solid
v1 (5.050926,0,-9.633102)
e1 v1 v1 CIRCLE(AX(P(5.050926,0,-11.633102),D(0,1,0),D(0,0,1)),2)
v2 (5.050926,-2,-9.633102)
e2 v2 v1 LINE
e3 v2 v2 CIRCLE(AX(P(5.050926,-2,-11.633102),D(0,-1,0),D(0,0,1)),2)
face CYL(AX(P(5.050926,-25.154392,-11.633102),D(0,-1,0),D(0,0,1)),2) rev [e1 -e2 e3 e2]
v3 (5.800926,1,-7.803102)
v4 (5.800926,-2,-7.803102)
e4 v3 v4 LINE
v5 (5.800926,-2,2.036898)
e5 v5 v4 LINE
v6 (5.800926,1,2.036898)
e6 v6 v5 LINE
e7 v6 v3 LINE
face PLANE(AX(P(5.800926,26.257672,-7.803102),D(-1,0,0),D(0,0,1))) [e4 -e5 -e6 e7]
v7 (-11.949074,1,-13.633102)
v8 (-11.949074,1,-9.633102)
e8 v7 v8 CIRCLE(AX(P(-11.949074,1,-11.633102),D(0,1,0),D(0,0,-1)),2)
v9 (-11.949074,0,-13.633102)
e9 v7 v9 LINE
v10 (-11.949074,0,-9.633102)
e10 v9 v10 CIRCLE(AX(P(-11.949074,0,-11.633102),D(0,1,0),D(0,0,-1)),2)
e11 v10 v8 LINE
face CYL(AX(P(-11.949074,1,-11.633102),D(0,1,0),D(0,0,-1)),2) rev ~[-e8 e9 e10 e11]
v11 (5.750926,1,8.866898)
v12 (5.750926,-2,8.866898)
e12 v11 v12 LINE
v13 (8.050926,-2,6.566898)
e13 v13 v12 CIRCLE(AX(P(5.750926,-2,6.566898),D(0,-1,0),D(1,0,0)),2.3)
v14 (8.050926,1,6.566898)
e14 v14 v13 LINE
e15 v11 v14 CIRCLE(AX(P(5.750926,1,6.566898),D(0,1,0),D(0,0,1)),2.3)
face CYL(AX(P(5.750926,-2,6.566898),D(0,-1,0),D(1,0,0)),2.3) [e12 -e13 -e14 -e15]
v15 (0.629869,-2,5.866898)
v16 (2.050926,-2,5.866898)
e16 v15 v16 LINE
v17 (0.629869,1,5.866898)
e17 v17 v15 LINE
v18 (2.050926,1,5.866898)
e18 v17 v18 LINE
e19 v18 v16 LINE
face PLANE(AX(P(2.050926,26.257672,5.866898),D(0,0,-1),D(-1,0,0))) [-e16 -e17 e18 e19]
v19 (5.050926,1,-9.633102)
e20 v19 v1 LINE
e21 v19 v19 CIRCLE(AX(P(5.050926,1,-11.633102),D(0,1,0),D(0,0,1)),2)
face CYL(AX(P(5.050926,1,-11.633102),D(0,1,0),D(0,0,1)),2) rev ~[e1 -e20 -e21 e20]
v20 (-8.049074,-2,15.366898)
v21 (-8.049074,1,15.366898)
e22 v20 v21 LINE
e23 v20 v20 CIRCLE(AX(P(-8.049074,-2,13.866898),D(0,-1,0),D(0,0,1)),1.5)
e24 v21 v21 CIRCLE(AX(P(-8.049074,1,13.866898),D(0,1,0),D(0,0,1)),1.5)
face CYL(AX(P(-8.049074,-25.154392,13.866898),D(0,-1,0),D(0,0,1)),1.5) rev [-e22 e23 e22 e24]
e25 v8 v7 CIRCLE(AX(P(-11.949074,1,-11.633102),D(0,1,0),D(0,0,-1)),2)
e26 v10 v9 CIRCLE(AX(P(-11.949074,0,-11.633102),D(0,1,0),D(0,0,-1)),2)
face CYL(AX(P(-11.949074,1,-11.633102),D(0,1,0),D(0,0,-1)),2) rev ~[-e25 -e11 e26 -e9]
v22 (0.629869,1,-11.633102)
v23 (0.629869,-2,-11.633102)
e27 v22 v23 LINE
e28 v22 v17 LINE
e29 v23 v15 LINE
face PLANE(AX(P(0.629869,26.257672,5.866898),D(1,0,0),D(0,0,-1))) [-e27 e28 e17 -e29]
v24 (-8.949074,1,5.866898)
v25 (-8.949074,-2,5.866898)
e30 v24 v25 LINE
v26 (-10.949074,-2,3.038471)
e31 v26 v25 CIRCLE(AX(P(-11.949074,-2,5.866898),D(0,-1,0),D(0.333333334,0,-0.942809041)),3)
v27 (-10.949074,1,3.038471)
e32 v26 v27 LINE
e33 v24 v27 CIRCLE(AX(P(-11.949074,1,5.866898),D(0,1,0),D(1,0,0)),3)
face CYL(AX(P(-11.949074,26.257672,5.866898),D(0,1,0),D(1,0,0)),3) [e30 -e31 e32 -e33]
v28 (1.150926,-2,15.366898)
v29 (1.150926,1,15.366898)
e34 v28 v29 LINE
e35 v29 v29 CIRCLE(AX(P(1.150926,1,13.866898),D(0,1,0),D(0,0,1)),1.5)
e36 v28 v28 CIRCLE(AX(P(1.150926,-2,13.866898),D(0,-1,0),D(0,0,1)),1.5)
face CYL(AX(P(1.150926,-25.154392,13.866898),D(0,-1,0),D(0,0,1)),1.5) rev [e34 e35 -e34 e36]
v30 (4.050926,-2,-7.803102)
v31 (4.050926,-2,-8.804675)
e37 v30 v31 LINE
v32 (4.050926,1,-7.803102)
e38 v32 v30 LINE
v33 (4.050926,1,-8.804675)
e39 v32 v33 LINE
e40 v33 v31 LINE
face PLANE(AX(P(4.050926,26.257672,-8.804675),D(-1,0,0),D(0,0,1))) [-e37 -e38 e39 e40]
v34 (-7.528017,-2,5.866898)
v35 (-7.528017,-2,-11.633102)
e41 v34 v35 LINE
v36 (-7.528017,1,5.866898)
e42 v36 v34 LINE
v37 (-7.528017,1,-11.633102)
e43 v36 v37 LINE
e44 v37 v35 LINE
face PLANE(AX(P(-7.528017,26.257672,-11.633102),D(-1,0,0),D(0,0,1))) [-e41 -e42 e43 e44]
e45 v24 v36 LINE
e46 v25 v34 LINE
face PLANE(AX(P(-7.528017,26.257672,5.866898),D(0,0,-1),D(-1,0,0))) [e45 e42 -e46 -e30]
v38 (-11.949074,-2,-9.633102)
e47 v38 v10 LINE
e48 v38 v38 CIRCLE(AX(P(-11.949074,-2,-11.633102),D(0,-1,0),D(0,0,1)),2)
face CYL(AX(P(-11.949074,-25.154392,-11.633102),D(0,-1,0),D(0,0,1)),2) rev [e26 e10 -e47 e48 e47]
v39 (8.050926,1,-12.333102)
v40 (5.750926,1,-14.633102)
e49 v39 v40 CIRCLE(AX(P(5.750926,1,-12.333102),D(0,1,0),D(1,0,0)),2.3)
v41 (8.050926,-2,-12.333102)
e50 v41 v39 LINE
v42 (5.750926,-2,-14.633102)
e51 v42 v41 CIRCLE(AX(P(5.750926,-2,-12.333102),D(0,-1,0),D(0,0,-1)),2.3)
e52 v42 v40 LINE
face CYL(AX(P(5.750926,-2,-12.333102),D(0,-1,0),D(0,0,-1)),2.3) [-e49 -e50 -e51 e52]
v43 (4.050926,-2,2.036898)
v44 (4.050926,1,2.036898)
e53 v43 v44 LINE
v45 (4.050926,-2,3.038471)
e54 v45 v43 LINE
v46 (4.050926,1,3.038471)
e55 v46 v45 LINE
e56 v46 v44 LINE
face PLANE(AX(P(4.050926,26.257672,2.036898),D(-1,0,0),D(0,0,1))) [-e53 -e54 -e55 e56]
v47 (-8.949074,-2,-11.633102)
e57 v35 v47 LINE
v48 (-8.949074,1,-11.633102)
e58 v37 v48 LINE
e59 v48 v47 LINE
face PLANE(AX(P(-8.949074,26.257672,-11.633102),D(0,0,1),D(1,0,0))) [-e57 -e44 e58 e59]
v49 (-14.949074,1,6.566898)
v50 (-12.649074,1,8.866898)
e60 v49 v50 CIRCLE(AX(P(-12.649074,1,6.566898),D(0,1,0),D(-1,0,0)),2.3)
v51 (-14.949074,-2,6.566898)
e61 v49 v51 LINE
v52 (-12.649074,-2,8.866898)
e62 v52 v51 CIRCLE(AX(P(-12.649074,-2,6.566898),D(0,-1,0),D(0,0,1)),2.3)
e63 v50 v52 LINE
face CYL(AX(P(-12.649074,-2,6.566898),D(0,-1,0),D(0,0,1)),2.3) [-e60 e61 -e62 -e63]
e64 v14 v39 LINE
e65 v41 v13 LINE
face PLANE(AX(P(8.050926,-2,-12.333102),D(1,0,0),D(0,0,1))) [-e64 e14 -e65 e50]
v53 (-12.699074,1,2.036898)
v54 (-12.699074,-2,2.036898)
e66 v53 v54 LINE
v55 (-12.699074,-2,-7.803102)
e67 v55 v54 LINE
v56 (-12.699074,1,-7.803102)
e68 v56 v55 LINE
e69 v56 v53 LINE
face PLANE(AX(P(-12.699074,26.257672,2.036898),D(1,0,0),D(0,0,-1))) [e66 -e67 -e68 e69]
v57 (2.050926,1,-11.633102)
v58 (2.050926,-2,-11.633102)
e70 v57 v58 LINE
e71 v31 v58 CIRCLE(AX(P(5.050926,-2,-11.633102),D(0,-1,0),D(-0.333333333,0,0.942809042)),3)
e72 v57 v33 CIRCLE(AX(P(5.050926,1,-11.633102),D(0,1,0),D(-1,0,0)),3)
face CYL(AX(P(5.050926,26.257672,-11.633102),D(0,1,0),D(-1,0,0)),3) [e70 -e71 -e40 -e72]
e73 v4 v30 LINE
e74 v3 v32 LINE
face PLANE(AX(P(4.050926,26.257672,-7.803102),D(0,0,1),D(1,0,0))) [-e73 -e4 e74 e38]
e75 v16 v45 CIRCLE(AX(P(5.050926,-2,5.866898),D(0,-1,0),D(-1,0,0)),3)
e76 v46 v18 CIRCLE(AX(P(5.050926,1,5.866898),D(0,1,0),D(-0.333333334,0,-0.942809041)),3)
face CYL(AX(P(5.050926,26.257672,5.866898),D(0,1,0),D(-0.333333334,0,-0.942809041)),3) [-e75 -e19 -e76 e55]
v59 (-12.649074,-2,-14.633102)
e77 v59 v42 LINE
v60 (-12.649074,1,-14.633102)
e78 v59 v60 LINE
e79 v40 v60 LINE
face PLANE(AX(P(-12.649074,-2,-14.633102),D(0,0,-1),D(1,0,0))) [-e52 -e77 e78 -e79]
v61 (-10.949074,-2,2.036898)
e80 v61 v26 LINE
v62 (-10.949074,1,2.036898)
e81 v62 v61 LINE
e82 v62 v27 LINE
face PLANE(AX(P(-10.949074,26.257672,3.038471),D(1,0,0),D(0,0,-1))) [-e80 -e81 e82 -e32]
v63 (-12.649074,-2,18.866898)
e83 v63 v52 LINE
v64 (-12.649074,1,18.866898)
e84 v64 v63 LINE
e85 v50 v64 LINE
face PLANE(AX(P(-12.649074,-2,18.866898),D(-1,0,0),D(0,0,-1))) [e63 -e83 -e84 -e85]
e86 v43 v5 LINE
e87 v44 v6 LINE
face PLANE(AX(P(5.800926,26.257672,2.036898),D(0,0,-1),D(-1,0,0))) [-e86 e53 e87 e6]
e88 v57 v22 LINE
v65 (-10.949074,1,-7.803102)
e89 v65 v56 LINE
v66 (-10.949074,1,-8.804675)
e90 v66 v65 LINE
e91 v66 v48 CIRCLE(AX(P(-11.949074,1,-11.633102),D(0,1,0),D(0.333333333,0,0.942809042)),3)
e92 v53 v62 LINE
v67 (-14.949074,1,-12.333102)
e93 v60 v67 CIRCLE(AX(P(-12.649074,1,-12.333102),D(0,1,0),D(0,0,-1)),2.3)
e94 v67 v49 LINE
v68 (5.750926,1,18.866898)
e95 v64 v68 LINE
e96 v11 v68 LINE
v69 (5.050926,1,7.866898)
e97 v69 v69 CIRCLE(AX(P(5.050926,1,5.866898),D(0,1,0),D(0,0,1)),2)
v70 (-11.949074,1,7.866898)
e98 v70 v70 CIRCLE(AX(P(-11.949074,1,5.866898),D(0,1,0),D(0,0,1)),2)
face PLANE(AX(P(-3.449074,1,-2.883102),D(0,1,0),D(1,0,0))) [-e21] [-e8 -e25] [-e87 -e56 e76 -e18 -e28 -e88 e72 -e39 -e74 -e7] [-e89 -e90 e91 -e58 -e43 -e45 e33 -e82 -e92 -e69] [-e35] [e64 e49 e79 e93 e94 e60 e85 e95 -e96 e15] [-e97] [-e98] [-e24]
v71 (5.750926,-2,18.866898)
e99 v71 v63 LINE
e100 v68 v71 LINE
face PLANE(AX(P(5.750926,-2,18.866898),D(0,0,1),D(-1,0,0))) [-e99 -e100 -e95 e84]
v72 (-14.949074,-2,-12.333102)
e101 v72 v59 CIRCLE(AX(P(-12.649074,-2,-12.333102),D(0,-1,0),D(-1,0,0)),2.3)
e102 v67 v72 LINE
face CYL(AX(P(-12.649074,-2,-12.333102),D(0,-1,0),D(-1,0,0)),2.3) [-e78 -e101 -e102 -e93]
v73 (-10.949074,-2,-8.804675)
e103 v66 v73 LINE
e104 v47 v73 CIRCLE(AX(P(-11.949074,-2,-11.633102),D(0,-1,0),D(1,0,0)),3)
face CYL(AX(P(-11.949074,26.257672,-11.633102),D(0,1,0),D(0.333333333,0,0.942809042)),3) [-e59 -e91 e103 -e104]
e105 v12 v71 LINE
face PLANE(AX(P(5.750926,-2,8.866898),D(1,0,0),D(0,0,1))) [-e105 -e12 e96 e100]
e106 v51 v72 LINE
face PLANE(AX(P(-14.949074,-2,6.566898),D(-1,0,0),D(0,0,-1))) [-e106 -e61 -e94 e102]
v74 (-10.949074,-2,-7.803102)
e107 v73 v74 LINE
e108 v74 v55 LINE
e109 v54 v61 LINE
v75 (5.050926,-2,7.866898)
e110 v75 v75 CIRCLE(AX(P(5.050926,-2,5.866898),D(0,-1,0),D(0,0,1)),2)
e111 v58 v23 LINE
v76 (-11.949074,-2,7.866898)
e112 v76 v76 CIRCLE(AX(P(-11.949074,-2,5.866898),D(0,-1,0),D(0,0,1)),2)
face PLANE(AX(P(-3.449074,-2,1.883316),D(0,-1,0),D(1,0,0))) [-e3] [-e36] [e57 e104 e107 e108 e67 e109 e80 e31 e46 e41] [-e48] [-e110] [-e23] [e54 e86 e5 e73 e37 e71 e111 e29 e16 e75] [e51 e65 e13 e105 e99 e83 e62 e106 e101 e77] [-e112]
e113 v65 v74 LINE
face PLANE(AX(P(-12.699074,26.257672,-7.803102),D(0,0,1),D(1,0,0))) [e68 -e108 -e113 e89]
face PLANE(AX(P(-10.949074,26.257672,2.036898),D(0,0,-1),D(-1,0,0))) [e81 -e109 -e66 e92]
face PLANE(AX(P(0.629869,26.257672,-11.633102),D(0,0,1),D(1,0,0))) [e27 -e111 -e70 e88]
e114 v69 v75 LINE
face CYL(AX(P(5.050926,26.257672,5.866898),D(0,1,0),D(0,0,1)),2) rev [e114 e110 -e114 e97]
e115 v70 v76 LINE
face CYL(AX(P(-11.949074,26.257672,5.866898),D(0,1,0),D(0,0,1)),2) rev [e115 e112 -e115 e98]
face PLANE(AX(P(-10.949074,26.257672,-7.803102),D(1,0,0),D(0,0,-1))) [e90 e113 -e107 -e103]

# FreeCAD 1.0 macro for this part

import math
import FreeCAD as App
import Part
import Sketcher
from FreeCAD import Vector


def add_polygon(sketch, points):
    """Adds a closed chain of lines whose ends are joined by coincident constraints."""
    first, n = sketch.GeometryCount, len(points)
    for a, b in zip(points, points[1:] + points[:1]):
        sketch.addGeometry(Part.LineSegment(App.Vector(*a, 0), App.Vector(*b, 0)), False)
    for i in range(n):
        sketch.addConstraint(Sketcher.Constraint("Coincident", first + i, 2, first + (i + 1) % n, 1))

doc = App.newDocument("Part")
params = doc.addObject("Spreadsheet::Sheet", "Params")
for row, (alias, value) in enumerate([
    ("sketch1_radius", "2.3 mm"),
    ("sketch1_width", "18.4 mm"),
    ("sketch1_height", "18.9 mm"),
    ("pad1_length", "2 mm"),
    ("sketch2_radius", "1.3 mm"),
    ("sketch2_width", "18.4 mm"),
    ("sketch2_height", "18.9 mm"),
    ("pocket1_length", "1 mm"),
    ("sketch3_diameter", "4 mm"),
    ("sketch4_radius", "3 mm"),
    ("sketch4_height", "17.5 mm"),
    ("sketch5_height", "1 mm"),
    ("sketch5_width", "18.4 mm"),
    ("pad2_length", "10 mm"),
    ("sketch6_diameter", "3 mm"),
    ("sketch7_radius", "1.5 mm"),
    ("sketch7_width", "18.4 mm"),
    ("sketch7_height", "18.9 mm"),
    ("pocket5_length", "1 mm"),
    ("sketch8_height", "17.5 mm"),
    ("sketch8_width", "1.75 mm"),
    ("sketch8_height2", "9.84 mm"),
    ("sketch9_radius", "2.3 mm"),
    ("sketch9_height", "10 mm"),
    ("sketch9_width", "18.4 mm"),
    ("sketch9_height2", "18.9 mm"),
    ("pad3_length", "2 mm"),
    ("sketch10_radius", "3 mm"),
    ("sketch10_height", "17.5 mm"),
    ("sketch10_width", "1.75 mm"),
    ("sketch10_height2", "9.84 mm"),
    ("sketch11_radius", "3 mm"),
    ("sketch11_height", "17.5 mm"),
    ("sketch11_width", "1 mm"),
    ("sketch11_width2", "1.75 mm"),
    ("sketch11_height2", "9.84 mm"),
    ("sketch12_diameter", "3 mm"),
    ("sketch13_diameter", "3 mm"),
    ("sketch14_diameter", "4 mm"),
    ("sketch15_radius", "1.5 mm"),
    ("sketch15_width", "18.4 mm"),
    ("sketch15_height", "18.9 mm"),
    ("pad4_length", "1 mm"),
    ("sketch16_diameter", "4 mm"),
    ("sketch16_radius", "3 mm"),
    ("sketch16_height", "17.5 mm"),
    ("sketch16_width", "1.75 mm"),
    ("sketch16_height2", "9.84 mm"),
    ("sketch17_radius", "2.3 mm"),
    ("sketch17_width", "18.4 mm"),
    ("sketch17_height", "18.9 mm"),
    ("pocket13_length", "1 mm"),
], start=1):
    params.set(f"A{row}", alias)
    params.set(f"B{row}", "=" + value)
    params.setAlias(f"B{row}", alias)

body = doc.addObject("PartDesign::Body", "Body")

sketch1 = doc.addObject("Sketcher::SketchObject", "Sketch")
body.addObject(sketch1)
sketch1.AttachmentSupport = (doc.XZ_Plane, [""])
sketch1.MapMode = "FlatFace"
sketch1.addGeometry([
    Part.LineSegment(Vector(5.750926, -14.633102, 0), Vector(-12.649074, -14.633102, 0)),
    Part.ArcOfCircle(Part.Circle(Vector(-12.649074, -12.333102, 0), Vector(0, 0, 1), 2.3), math.radians(180), math.radians(270)),
    Part.LineSegment(Vector(-14.949074, -12.333102, 0), Vector(-14.949074, 6.566898, 0)),
    Part.ArcOfCircle(Part.Circle(Vector(-12.649074, 6.566898, 0), Vector(0, 0, 1), 2.3), math.radians(90), math.radians(180)),
    Part.LineSegment(Vector(-12.649074, 8.866898, 0), Vector(5.750926, 8.866898, 0)),
    Part.ArcOfCircle(Part.Circle(Vector(5.750926, 6.566898, 0), Vector(0, 0, 1), 2.3), math.radians(0), math.radians(90)),
    Part.LineSegment(Vector(8.050926, 6.566898, 0), Vector(8.050926, -12.333102, 0)),
    Part.ArcOfCircle(Part.Circle(Vector(5.750926, -12.333102, 0), Vector(0, 0, 1), 2.3), math.radians(-90), math.radians(0)),
], False)
sketch1.addConstraint([
    Sketcher.Constraint("Tangent", 0, 2, 1, 2),
    Sketcher.Constraint("Tangent", 1, 1, 2, 1),
    Sketcher.Constraint("Tangent", 2, 2, 3, 2),
    Sketcher.Constraint("Tangent", 3, 1, 4, 1),
    Sketcher.Constraint("Tangent", 4, 2, 5, 2),
    Sketcher.Constraint("Tangent", 5, 1, 6, 1),
    Sketcher.Constraint("Tangent", 6, 2, 7, 2),
    Sketcher.Constraint("Tangent", 7, 1, 0, 1),
    Sketcher.Constraint("Horizontal", 0),
    Sketcher.Constraint("Vertical", 2),
    Sketcher.Constraint("Horizontal", 4),
    Sketcher.Constraint("Vertical", 6),
    Sketcher.Constraint("Equal", 1, 3),
    Sketcher.Constraint("Equal", 3, 5),
    Sketcher.Constraint("Equal", 5, 7),
    Sketcher.Constraint("Radius", 1, 2.3),
    Sketcher.Constraint("DistanceX", 0, 2, 0, 1, 18.4),
    Sketcher.Constraint("DistanceY", 2, 1, 2, 2, 18.9),
    Sketcher.Constraint("DistanceY", 1, 3, -1, 1, 12.333102),
    Sketcher.Constraint("DistanceX", 1, 3, -1, 1, 12.649074),
])
sketch1.setExpression("Constraints[15]", "Params.sketch1_radius")
sketch1.setExpression("Constraints[16]", "Params.sketch1_width")
sketch1.setExpression("Constraints[17]", "Params.sketch1_height")
pad1 = doc.addObject("PartDesign::Pad", "Pad")
body.addObject(pad1)
pad1.Profile = sketch1
pad1.setExpression("Length", "Params.pad1_length")
pad1.Reversed = True

sketch2 = doc.addObject("Sketcher::SketchObject", "Sketch001")
body.addObject(sketch2)
sketch2.AttachmentSupport = (doc.XZ_Plane, [""])
sketch2.MapMode = "FlatFace"
sketch2.AttachmentOffset = App.Placement(Vector(0, 0, -2), App.Rotation())
sketch2.addGeometry([
    Part.LineSegment(Vector(5.750926, -13.633102, 0), Vector(-12.649074, -13.633102, 0)),
    Part.ArcOfCircle(Part.Circle(Vector(-12.649074, -12.333102, 0), Vector(0, 0, 1), 1.3), math.radians(180), math.radians(270)),
    Part.LineSegment(Vector(-13.949074, -12.333102, 0), Vector(-13.949074, 6.566898, 0)),
    Part.ArcOfCircle(Part.Circle(Vector(-12.649074, 6.566898, 0), Vector(0, 0, 1), 1.3), math.radians(90), math.radians(180)),
    Part.LineSegment(Vector(-12.649074, 7.866898, 0), Vector(5.750926, 7.866898, 0)),
    Part.ArcOfCircle(Part.Circle(Vector(5.750926, 6.566898, 0), Vector(0, 0, 1), 1.3), math.radians(0), math.radians(90)),
    Part.LineSegment(Vector(7.050926, 6.566898, 0), Vector(7.050926, -12.333102, 0)),
    Part.ArcOfCircle(Part.Circle(Vector(5.750926, -12.333102, 0), Vector(0, 0, 1), 1.3), math.radians(-90), math.radians(0)),
], False)
sketch2.addConstraint([
    Sketcher.Constraint("Tangent", 0, 2, 1, 2),
    Sketcher.Constraint("Tangent", 1, 1, 2, 1),
    Sketcher.Constraint("Tangent", 2, 2, 3, 2),
    Sketcher.Constraint("Tangent", 3, 1, 4, 1),
    Sketcher.Constraint("Tangent", 4, 2, 5, 2),
    Sketcher.Constraint("Tangent", 5, 1, 6, 1),
    Sketcher.Constraint("Tangent", 6, 2, 7, 2),
    Sketcher.Constraint("Tangent", 7, 1, 0, 1),
    Sketcher.Constraint("Horizontal", 0),
    Sketcher.Constraint("Vertical", 2),
    Sketcher.Constraint("Horizontal", 4),
    Sketcher.Constraint("Vertical", 6),
    Sketcher.Constraint("Equal", 1, 3),
    Sketcher.Constraint("Equal", 3, 5),
    Sketcher.Constraint("Equal", 5, 7),
    Sketcher.Constraint("Radius", 1, 1.3),
    Sketcher.Constraint("DistanceX", 0, 2, 0, 1, 18.4),
    Sketcher.Constraint("DistanceY", 2, 1, 2, 2, 18.9),
    Sketcher.Constraint("DistanceY", 1, 3, -1, 1, 12.333102),
    Sketcher.Constraint("DistanceX", 1, 3, -1, 1, 12.649074),
])
sketch2.setExpression("Constraints[15]", "Params.sketch2_radius")
sketch2.setExpression("Constraints[16]", "Params.sketch2_width")
sketch2.setExpression("Constraints[17]", "Params.sketch2_height")
pocket1 = doc.addObject("PartDesign::Pocket", "Pocket")
body.addObject(pocket1)
pocket1.Profile = sketch2
pocket1.setExpression("Length", "Params.pocket1_length")
pocket1.Reversed = True

sketch3 = doc.addObject("Sketcher::SketchObject", "Sketch002")
body.addObject(sketch3)
sketch3.AttachmentSupport = (doc.XZ_Plane, [""])
sketch3.MapMode = "FlatFace"
sketch3.AttachmentOffset = App.Placement(Vector(0, 0, -1), App.Rotation())
sketch3.addGeometry([
    Part.Circle(Vector(5.050926, -11.633102, 0), Vector(0, 0, 1), 2),
    Part.Circle(Vector(5.050926, 5.866898, 0), Vector(0, 0, 1), 2),
    Part.Circle(Vector(-11.949074, 5.866898, 0), Vector(0, 0, 1), 2),
    Part.Circle(Vector(-11.949074, -11.633102, 0), Vector(0, 0, 1), 2),
], False)
sketch3.addConstraint([
    Sketcher.Constraint("Equal", 0, 1),
    Sketcher.Constraint("Equal", 1, 2),
    Sketcher.Constraint("Equal", 2, 3),
    Sketcher.Constraint("Horizontal", 1, 3, 2, 3),
    Sketcher.Constraint("Horizontal", 0, 3, 3, 3),
    Sketcher.Constraint("Vertical", 0, 3, 1, 3),
    Sketcher.Constraint("Vertical", 2, 3, 3, 3),
    Sketcher.Constraint("Diameter", 0, 4.0),
    Sketcher.Constraint("DistanceX", 2, 3, 1, 3, 17.0),
    Sketcher.Constraint("DistanceY", 0, 3, 1, 3, 17.5),
    Sketcher.Constraint("DistanceY", 0, 3, -1, 1, 11.633102),
    Sketcher.Constraint("DistanceX", -1, 1, 0, 3, 5.050926),
])
sketch3.setExpression("Constraints[7]", "Params.sketch3_diameter")
pocket2 = doc.addObject("PartDesign::Pocket", "Pocket001")
body.addObject(pocket2)
pocket2.Profile = sketch3
pocket2.Type = "ThroughAll"
pocket2.Reversed = True

sketch4 = doc.addObject("Sketcher::SketchObject", "Sketch003")
body.addObject(sketch4)
sketch4.AttachmentSupport = (doc.XZ_Plane, [""])
sketch4.MapMode = "FlatFace"
sketch4.AttachmentOffset = App.Placement(Vector(0, 0, -1), App.Rotation())
sketch4.addGeometry([
    Part.LineSegment(Vector(4.050926, 3.038471, 0), Vector(4.050926, -8.804675, 0)),
    Part.ArcOfCircle(Part.Circle(Vector(5.050926, -11.633102, 0), Vector(0, 0, 1), 3), math.radians(109.471221), math.radians(180)),
    Part.LineSegment(Vector(2.050926, -11.633102, 0), Vector(2.050926, 5.866898, 0)),
    Part.ArcOfCircle(Part.Circle(Vector(5.050926, 5.866898, 0), Vector(0, 0, 1), 3), math.radians(-180), math.radians(-109.471221)),
    Part.LineSegment(Vector(-10.949074, -8.804675, 0), Vector(-10.949074, 3.038471, 0)),
    Part.ArcOfCircle(Part.Circle(Vector(-11.949074, 5.866898, 0), Vector(0, 0, 1), 3), math.radians(-70.528779), math.radians(0)),
    Part.LineSegment(Vector(-8.949074, 5.866898, 0), Vector(-8.949074, -11.633102, 0)),
    Part.ArcOfCircle(Part.Circle(Vector(-11.949074, -11.633102, 0), Vector(0, 0, 1), 3), math.radians(0), math.radians(70.528779)),
], False)
sketch4.addConstraint([
    Sketcher.Constraint("Coincident", 0, 2, 1, 1),
    Sketcher.Constraint("Tangent", 1, 2, 2, 1),
    Sketcher.Constraint("Tangent", 2, 2, 3, 1),
    Sketcher.Constraint("Coincident", 3, 2, 0, 1),
    Sketcher.Constraint("Coincident", 4, 2, 5, 1),
    Sketcher.Constraint("Tangent", 5, 2, 6, 1),
    Sketcher.Constraint("Tangent", 6, 2, 7, 1),
    Sketcher.Constraint("Coincident", 7, 2, 4, 1),
    Sketcher.Constraint("Vertical", 0),
    Sketcher.Constraint("Vertical", 2),
    Sketcher.Constraint("Vertical", 4),
    Sketcher.Constraint("Vertical", 6),
    Sketcher.Constraint("Equal", 1, 3),
    Sketcher.Constraint("Equal", 3, 5),
    Sketcher.Constraint("Equal", 5, 7),
    Sketcher.Constraint("Horizontal", 3, 3, 5, 3),
    Sketcher.Constraint("Horizontal", 1, 3, 7, 3),
    Sketcher.Constraint("Horizontal", 3, 2, 4, 2),
    Sketcher.Constraint("Radius", 1, 3.0),
    Sketcher.Constraint("DistanceY", 2, 1, 2, 2, 17.5),
    Sketcher.Constraint("DistanceX", 5, 3, 3, 3, 17.0),
    Sketcher.Constraint("DistanceX", 0, 2, 1, 3, 1.0),
    Sketcher.Constraint("DistanceY", 1, 3, -1, 1, 11.633102),
    Sketcher.Constraint("DistanceX", -1, 1, 1, 3, 5.050926),
])
sketch4.setExpression("Constraints[18]", "Params.sketch4_radius")
sketch4.setExpression("Constraints[19]", "Params.sketch4_height")
pocket3 = doc.addObject("PartDesign::Pocket", "Pocket002")
body.addObject(pocket3)
pocket3.Profile = sketch4
pocket3.Type = "ThroughAll"
pocket3.Reversed = True

sketch5 = doc.addObject("Sketcher::SketchObject", "Sketch004")
body.addObject(sketch5)
sketch5.AttachmentSupport = (doc.XY_Plane, [""])
sketch5.MapMode = "FlatFace"
sketch5.AttachmentOffset = App.Placement(Vector(0, 0, 8.866898), App.Rotation())
add_polygon(sketch5, [(-12.649074, 1), (-12.649074, 0), (5.750926, 0), (5.750926, 1)])
sketch5.addConstraint([
    Sketcher.Constraint("Vertical", 0),
    Sketcher.Constraint("Horizontal", 1),
    Sketcher.Constraint("Vertical", 2),
    Sketcher.Constraint("Horizontal", 3),
    Sketcher.Constraint("PointOnObject", 0, 2, -1),
    Sketcher.Constraint("DistanceY", 0, 2, 0, 1, 1.0),
    Sketcher.Constraint("DistanceX", 1, 1, 1, 2, 18.4),
    Sketcher.Constraint("DistanceX", 0, 2, -1, 1, 12.649074),
])
sketch5.setExpression("Constraints[9]", "Params.sketch5_height")
sketch5.setExpression("Constraints[10]", "Params.sketch5_width")
pad2 = doc.addObject("PartDesign::Pad", "Pad001")
body.addObject(pad2)
pad2.Profile = sketch5
pad2.setExpression("Length", "Params.pad2_length")

sketch6 = doc.addObject("Sketcher::SketchObject", "Sketch005")
body.addObject(sketch6)
sketch6.AttachmentSupport = (doc.XZ_Plane, [""])
sketch6.MapMode = "FlatFace"
sketch6.AttachmentOffset = App.Placement(Vector(0, 0, -1), App.Rotation())
sketch6.addGeometry([
    Part.Circle(Vector(1.150926, 13.866898, 0), Vector(0, 0, 1), 1.5),
    Part.Circle(Vector(-8.049074, 13.866898, 0), Vector(0, 0, 1), 1.5),
], False)
sketch6.addConstraint([
    Sketcher.Constraint("Equal", 0, 1),
    Sketcher.Constraint("Horizontal", 0, 3, 1, 3),
    Sketcher.Constraint("Diameter", 0, 3.0),
    Sketcher.Constraint("DistanceX", 1, 3, 0, 3, 9.2),
    Sketcher.Constraint("DistanceY", -1, 1, 0, 3, 13.866898),
    Sketcher.Constraint("DistanceX", -1, 1, 0, 3, 1.150926),
])
sketch6.setExpression("Constraints[2]", "Params.sketch6_diameter")
pocket4 = doc.addObject("PartDesign::Pocket", "Pocket003")
body.addObject(pocket4)
pocket4.Profile = sketch6
pocket4.Type = "ThroughAll"
pocket4.Reversed = True

sketch7 = doc.addObject("Sketcher::SketchObject", "Sketch006")
body.addObject(sketch7)
sketch7.AttachmentSupport = (doc.XZ_Plane, [""])
sketch7.MapMode = "FlatFace"
sketch7.AttachmentOffset = App.Placement(Vector(0, 0, -2), App.Rotation())
sketch7.addGeometry([
    Part.LineSegment(Vector(5.750926, -13.833102, 0), Vector(-12.649074, -13.833102, 0)),
    Part.ArcOfCircle(Part.Circle(Vector(-12.649074, -12.333102, 0), Vector(0, 0, 1), 1.5), math.radians(180), math.radians(270)),
    Part.LineSegment(Vector(-14.149074, -12.333102, 0), Vector(-14.149074, 6.566898, 0)),
    Part.ArcOfCircle(Part.Circle(Vector(-12.649074, 6.566898, 0), Vector(0, 0, 1), 1.5), math.radians(90), math.radians(180)),
    Part.LineSegment(Vector(-12.649074, 8.066898, 0), Vector(5.750926, 8.066898, 0)),
    Part.ArcOfCircle(Part.Circle(Vector(5.750926, 6.566898, 0), Vector(0, 0, 1), 1.5), math.radians(0), math.radians(90)),
    Part.LineSegment(Vector(7.250926, 6.566898, 0), Vector(7.250926, -12.333102, 0)),
    Part.ArcOfCircle(Part.Circle(Vector(5.750926, -12.333102, 0), Vector(0, 0, 1), 1.5), math.radians(-90), math.radians(0)),
], False)
sketch7.addConstraint([
    Sketcher.Constraint("Tangent", 0, 2, 1, 2),
    Sketcher.Constraint("Tangent", 1, 1, 2, 1),
    Sketcher.Constraint("Tangent", 2, 2, 3, 2),
    Sketcher.Constraint("Tangent", 3, 1, 4, 1),
    Sketcher.Constraint("Tangent", 4, 2, 5, 2),
    Sketcher.Constraint("Tangent", 5, 1, 6, 1),
    Sketcher.Constraint("Tangent", 6, 2, 7, 2),
    Sketcher.Constraint("Tangent", 7, 1, 0, 1),
    Sketcher.Constraint("Horizontal", 0),
    Sketcher.Constraint("Vertical", 2),
    Sketcher.Constraint("Horizontal", 4),
    Sketcher.Constraint("Vertical", 6),
    Sketcher.Constraint("Equal", 1, 3),
    Sketcher.Constraint("Equal", 3, 5),
    Sketcher.Constraint("Equal", 5, 7),
    Sketcher.Constraint("Radius", 1, 1.5),
    Sketcher.Constraint("DistanceX", 0, 2, 0, 1, 18.4),
    Sketcher.Constraint("DistanceY", 2, 1, 2, 2, 18.9),
    Sketcher.Constraint("DistanceY", 1, 3, -1, 1, 12.333102),
    Sketcher.Constraint("DistanceX", 1, 3, -1, 1, 12.649074),
])
sketch7.setExpression("Constraints[15]", "Params.sketch7_radius")
sketch7.setExpression("Constraints[16]", "Params.sketch7_width")
sketch7.setExpression("Constraints[17]", "Params.sketch7_height")
pocket5 = doc.addObject("PartDesign::Pocket", "Pocket004")
body.addObject(pocket5)
pocket5.Profile = sketch7
pocket5.setExpression("Length", "Params.pocket5_length")
pocket5.Reversed = True

sketch8 = doc.addObject("Sketcher::SketchObject", "Sketch007")
body.addObject(sketch8)
sketch8.AttachmentSupport = (doc.XZ_Plane, [""])
sketch8.MapMode = "FlatFace"
sketch8.AttachmentOffset = App.Placement(Vector(0, 0, -1), App.Rotation())
add_polygon(sketch8, [(-8.949074, -11.633102), (-8.949074, 5.866898), (-7.528017, 5.866898), (-7.528017, -11.633102)])
add_polygon(sketch8, [(0.629869, -11.633102), (0.629869, 5.866898), (2.050926, 5.866898), (2.050926, -11.633102)])
add_polygon(sketch8, [(-12.699074, -7.803102), (-12.699074, 2.036898), (-10.949074, 2.036898), (-10.949074, -7.803102)])
add_polygon(sketch8, [(4.050926, -7.803102), (4.050926, 2.036898), (5.800926, 2.036898), (5.800926, -7.803102)])
sketch8.addConstraint([
    Sketcher.Constraint("Vertical", 0),
    Sketcher.Constraint("Horizontal", 1),
    Sketcher.Constraint("Vertical", 2),
    Sketcher.Constraint("Horizontal", 3),
    Sketcher.Constraint("Vertical", 4),
    Sketcher.Constraint("Horizontal", 5),
    Sketcher.Constraint("Vertical", 6),
    Sketcher.Constraint("Horizontal", 7),
    Sketcher.Constraint("Vertical", 8),
    Sketcher.Constraint("Horizontal", 9),
    Sketcher.Constraint("Vertical", 10),
    Sketcher.Constraint("Horizontal", 11),
    Sketcher.Constraint("Vertical", 12),
    Sketcher.Constraint("Horizontal", 13),
    Sketcher.Constraint("Vertical", 14),
    Sketcher.Constraint("Horizontal", 15),
    Sketcher.Constraint("Horizontal", 1, 2, 4, 2),
    Sketcher.Constraint("Horizontal", 3, 2, 6, 2),
    Sketcher.Constraint("Horizontal", 9, 2, 12, 2),
    Sketcher.Constraint("Horizontal", 11, 2, 14, 2),
    Sketcher.Constraint("Equal", 3, 5),
    Sketcher.Constraint("Equal", 11, 13),
    Sketcher.Constraint("DistanceY", 0, 1, 0, 2, 17.5),
    Sketcher.Constraint("DistanceX", 0, 2, 5, 2, 11.0),
    Sketcher.Constraint("DistanceX", 9, 2, 0, 2, 2.0),
    Sketcher.Constraint("DistanceX", 5, 2, 12, 2, 2.0),
    Sketcher.Constraint("DistanceX", 9, 1, 9, 2, 1.75),
    Sketcher.Constraint("DistanceY", 8, 1, 8, 2, 9.84),
    Sketcher.Constraint("DistanceY", 8, 2, 0, 2, 3.83),
    Sketcher.Constraint("DistanceY", -1, 1, 0, 2, 5.866898),
    Sketcher.Constraint("DistanceX", 1, 1, 1, 2, 1.421057),
    Sketcher.Constraint("DistanceX", -1, 1, 4, 2, 0.629869),
])
sketch8.setExpression("Constraints[38]", "Params.sketch8_height")
sketch8.setExpression("Constraints[42]", "Params.sketch8_width")
sketch8.setExpression("Constraints[43]", "Params.sketch8_height2")
pocket6 = doc.addObject("PartDesign::Pocket", "Pocket005")
body.addObject(pocket6)
pocket6.Profile = sketch8
pocket6.Type = "ThroughAll"
pocket6.Reversed = True

sketch9 = doc.addObject("Sketcher::SketchObject", "Sketch008")
body.addObject(sketch9)
sketch9.AttachmentSupport = (doc.XZ_Plane, [""])
sketch9.MapMode = "FlatFace"
sketch9.AttachmentOffset = App.Placement(Vector(0, 0, 2), App.Rotation())
sketch9.addGeometry([
    Part.LineSegment(Vector(8.050926, -12.333102, 0), Vector(8.050926, 6.566898, 0)),
    Part.ArcOfCircle(Part.Circle(Vector(5.750926, 6.566898, 0), Vector(0, 0, 1), 2.3), math.radians(0), math.radians(90)),
    Part.LineSegment(Vector(5.750926, 8.866898, 0), Vector(5.750926, 18.866898, 0)),
    Part.LineSegment(Vector(5.750926, 18.866898, 0), Vector(-12.649074, 18.866898, 0)),
    Part.LineSegment(Vector(-12.649074, 18.866898, 0), Vector(-12.649074, 8.866898, 0)),
    Part.ArcOfCircle(Part.Circle(Vector(-12.649074, 6.566898, 0), Vector(0, 0, 1), 2.3), math.radians(90), math.radians(180)),
    Part.LineSegment(Vector(-14.949074, 6.566898, 0), Vector(-14.949074, -12.333102, 0)),
    Part.ArcOfCircle(Part.Circle(Vector(-12.649074, -12.333102, 0), Vector(0, 0, 1), 2.3), math.radians(180), math.radians(270)),
    Part.LineSegment(Vector(-12.649074, -14.633102, 0), Vector(5.750926, -14.633102, 0)),
    Part.ArcOfCircle(Part.Circle(Vector(5.750926, -12.333102, 0), Vector(0, 0, 1), 2.3), math.radians(-90), math.radians(0)),
], False)
sketch9.addConstraint([
    Sketcher.Constraint("Tangent", 0, 2, 1, 1),
    Sketcher.Constraint("Coincident", 1, 2, 2, 1),
    Sketcher.Constraint("Coincident", 2, 2, 3, 1),
    Sketcher.Constraint("Coincident", 3, 2, 4, 1),
    Sketcher.Constraint("Coincident", 4, 2, 5, 1),
    Sketcher.Constraint("Tangent", 5, 2, 6, 1),
    Sketcher.Constraint("Tangent", 6, 2, 7, 1),
    Sketcher.Constraint("Tangent", 7, 2, 8, 1),
    Sketcher.Constraint("Tangent", 8, 2, 9, 1),
    Sketcher.Constraint("Tangent", 9, 2, 0, 1),
    Sketcher.Constraint("Vertical", 0),
    Sketcher.Constraint("Vertical", 2),
    Sketcher.Constraint("Horizontal", 3),
    Sketcher.Constraint("Vertical", 4),
    Sketcher.Constraint("Vertical", 6),
    Sketcher.Constraint("Horizontal", 8),
    Sketcher.Constraint("Equal", 1, 5),
    Sketcher.Constraint("Equal", 5, 7),
    Sketcher.Constraint("Equal", 7, 9),
    Sketcher.Constraint("Horizontal", 1, 3, 5, 3),
    Sketcher.Constraint("Vertical", 9, 3, 1, 2),
    Sketcher.Constraint("Vertical", 7, 3, 3, 2),
    Sketcher.Constraint("Radius", 1, 2.3),
    Sketcher.Constraint("DistanceY", 2, 1, 2, 2, 10.0),
    Sketcher.Constraint("DistanceX", 3, 2, 3, 1, 18.4),
    Sketcher.Constraint("DistanceY", 0, 1, 0, 2, 18.9),
    Sketcher.Constraint("DistanceY", -1, 1, 1, 3, 6.566898),
    Sketcher.Constraint("DistanceX", -1, 1, 1, 3, 5.750926),
])
sketch9.setExpression("Constraints[22]", "Params.sketch9_radius")
sketch9.setExpression("Constraints[23]", "Params.sketch9_height")
sketch9.setExpression("Constraints[24]", "Params.sketch9_width")
sketch9.setExpression("Constraints[25]", "Params.sketch9_height2")
pad3 = doc.addObject("PartDesign::Pad", "Pad002")
body.addObject(pad3)
pad3.Profile = sketch9
pad3.setExpression("Length", "Params.pad3_length")
pad3.Reversed = True

sketch10 = doc.addObject("Sketcher::SketchObject", "Sketch009")
body.addObject(sketch10)
sketch10.AttachmentSupport = (doc.XZ_Plane, [""])
sketch10.MapMode = "FlatFace"
sketch10.addGeometry([
    Part.LineSegment(Vector(-12.699074, -7.803102, 0), Vector(-12.699074, 2.036898, 0)),
    Part.LineSegment(Vector(-12.699074, 2.036898, 0), Vector(-10.949074, 2.036898, 0)),
    Part.LineSegment(Vector(-10.949074, 2.036898, 0), Vector(-10.949074, 3.038471, 0)),
    Part.ArcOfCircle(Part.Circle(Vector(-11.949074, 5.866898, 0), Vector(0, 0, 1), 3), math.radians(-70.528779), math.radians(0)),
    Part.LineSegment(Vector(-8.949074, 5.866898, 0), Vector(-7.528017, 5.866898, 0)),
    Part.LineSegment(Vector(-7.528017, 5.866898, 0), Vector(-7.528017, -11.633102, 0)),
    Part.LineSegment(Vector(-7.528017, -11.633102, 0), Vector(-8.949074, -11.633102, 0)),
    Part.ArcOfCircle(Part.Circle(Vector(-11.949074, -11.633102, 0), Vector(0, 0, 1), 3), math.radians(0), math.radians(70.528779)),
    Part.LineSegment(Vector(-10.949074, -8.804675, 0), Vector(-10.949074, -7.803102, 0)),
    Part.LineSegment(Vector(-10.949074, -7.803102, 0), Vector(-12.699074, -7.803102, 0)),
], False)
sketch10.addConstraint([
    Sketcher.Constraint("Coincident", 0, 2, 1, 1),
    Sketcher.Constraint("Coincident", 1, 2, 2, 1),
    Sketcher.Constraint("Coincident", 2, 2, 3, 1),
    Sketcher.Constraint("Coincident", 3, 2, 4, 1),
    Sketcher.Constraint("Coincident", 4, 2, 5, 1),
    Sketcher.Constraint("Coincident", 5, 2, 6, 1),
    Sketcher.Constraint("Coincident", 6, 2, 7, 1),
    Sketcher.Constraint("Coincident", 7, 2, 8, 1),
    Sketcher.Constraint("Coincident", 8, 2, 9, 1),
    Sketcher.Constraint("Coincident", 9, 2, 0, 1),
    Sketcher.Constraint("Vertical", 0),
    Sketcher.Constraint("Horizontal", 1),
    Sketcher.Constraint("Vertical", 2),
    Sketcher.Constraint("Horizontal", 4),
    Sketcher.Constraint("Vertical", 5),
    Sketcher.Constraint("Horizontal", 6),
    Sketcher.Constraint("Vertical", 8),
    Sketcher.Constraint("Horizontal", 9),
    Sketcher.Constraint("Equal", 3, 7),
    Sketcher.Constraint("Horizontal", 7, 3, 5, 2),
    Sketcher.Constraint("Vertical", 3, 3, 7, 3),
    Sketcher.Constraint("Vertical", 2, 2, 7, 2),
    Sketcher.Constraint("Equal", 2, 8),
    Sketcher.Constraint("Radius", 3, 3.0),
    Sketcher.Constraint("DistanceY", 5, 2, 5, 1, 17.5),
    Sketcher.Constraint("DistanceX", 3, 3, 1, 2, 1.0),
    Sketcher.Constraint("DistanceX", 1, 1, 1, 2, 1.75),
    Sketcher.Constraint("DistanceY", 0, 1, 0, 2, 9.84),
    Sketcher.Constraint("DistanceY", 7, 3, 3, 3, 17.5),
    Sketcher.Constraint("DistanceY", -1, 1, 3, 3, 5.866898),
    Sketcher.Constraint("DistanceX", 4, 1, 4, 2, 1.421057),
    Sketcher.Constraint("DistanceX", 3, 3, -1, 1, 11.949074),
])
sketch10.setExpression("Constraints[23]", "Params.sketch10_radius")
sketch10.setExpression("Constraints[24]", "Params.sketch10_height")
sketch10.setExpression("Constraints[26]", "Params.sketch10_width")
sketch10.setExpression("Constraints[27]", "Params.sketch10_height2")
pocket7 = doc.addObject("PartDesign::Pocket", "Pocket006")
body.addObject(pocket7)
pocket7.Profile = sketch10
pocket7.Type = "ThroughAll"
pocket7.Midplane = True

sketch11 = doc.addObject("Sketcher::SketchObject", "Sketch010")
body.addObject(sketch11)
sketch11.AttachmentSupport = (doc.XZ_Plane, [""])
sketch11.MapMode = "FlatFace"
sketch11.addGeometry([
    Part.LineSegment(Vector(0.629869, 5.866898, 0), Vector(2.050926, 5.866898, 0)),
    Part.ArcOfCircle(Part.Circle(Vector(5.050926, 5.866898, 0), Vector(0, 0, 1), 3), math.radians(-180), math.radians(-109.471221)),
    Part.LineSegment(Vector(4.050926, 3.038471, 0), Vector(4.050926, 2.036898, 0)),
    Part.LineSegment(Vector(4.050926, 2.036898, 0), Vector(5.800926, 2.036898, 0)),
    Part.LineSegment(Vector(5.800926, 2.036898, 0), Vector(5.800926, -7.803102, 0)),
    Part.LineSegment(Vector(5.800926, -7.803102, 0), Vector(4.050926, -7.803102, 0)),
    Part.LineSegment(Vector(4.050926, -7.803102, 0), Vector(4.050926, -8.804675, 0)),
    Part.ArcOfCircle(Part.Circle(Vector(5.050926, -11.633102, 0), Vector(0, 0, 1), 3), math.radians(109.471221), math.radians(180)),
    Part.LineSegment(Vector(2.050926, -11.633102, 0), Vector(0.629869, -11.633102, 0)),
    Part.LineSegment(Vector(0.629869, -11.633102, 0), Vector(0.629869, 5.866898, 0)),
], False)
sketch11.addConstraint([
    Sketcher.Constraint("Coincident", 0, 2, 1, 1),
    Sketcher.Constraint("Coincident", 1, 2, 2, 1),
    Sketcher.Constraint("Coincident", 2, 2, 3, 1),
    Sketcher.Constraint("Coincident", 3, 2, 4, 1),
    Sketcher.Constraint("Coincident", 4, 2, 5, 1),
    Sketcher.Constraint("Coincident", 5, 2, 6, 1),
    Sketcher.Constraint("Coincident", 6, 2, 7, 1),
    Sketcher.Constraint("Coincident", 7, 2, 8, 1),
    Sketcher.Constraint("Coincident", 8, 2, 9, 1),
    Sketcher.Constraint("Coincident", 9, 2, 0, 1),
    Sketcher.Constraint("Horizontal", 0),
    Sketcher.Constraint("Vertical", 2),
    Sketcher.Constraint("Horizontal", 3),
    Sketcher.Constraint("Vertical", 4),
    Sketcher.Constraint("Horizontal", 5),
    Sketcher.Constraint("Vertical", 6),
    Sketcher.Constraint("Horizontal", 8),
    Sketcher.Constraint("Vertical", 9),
    Sketcher.Constraint("Equal", 1, 7),
    Sketcher.Constraint("Horizontal", 1, 3, 0, 2),
    Sketcher.Constraint("Vertical", 1, 3, 7, 3),
    Sketcher.Constraint("Vertical", 2, 2, 5, 2),
    Sketcher.Constraint("Equal", 2, 6),
    Sketcher.Constraint("Radius", 1, 3.0),
    Sketcher.Constraint("DistanceY", 9, 1, 9, 2, 17.5),
    Sketcher.Constraint("DistanceX", 1, 2, 1, 3, 1.0),
    Sketcher.Constraint("DistanceX", 3, 1, 3, 2, 1.75),
    Sketcher.Constraint("DistanceY", 4, 2, 4, 1, 9.84),
    Sketcher.Constraint("DistanceY", 7, 3, 1, 3, 17.5),
    Sketcher.Constraint("DistanceY", -1, 1, 1, 3, 5.866898),
    Sketcher.Constraint("DistanceX", 0, 1, 0, 2, 1.421057),
    Sketcher.Constraint("DistanceX", -1, 1, 8, 2, 0.629869),
])
sketch11.setExpression("Constraints[23]", "Params.sketch11_radius")
sketch11.setExpression("Constraints[24]", "Params.sketch11_height")
sketch11.setExpression("Constraints[25]", "Params.sketch11_width")
sketch11.setExpression("Constraints[26]", "Params.sketch11_width2")
sketch11.setExpression("Constraints[27]", "Params.sketch11_height2")
pocket8 = doc.addObject("PartDesign::Pocket", "Pocket007")
body.addObject(pocket8)
pocket8.Profile = sketch11
pocket8.Type = "ThroughAll"
pocket8.Midplane = True

sketch12 = doc.addObject("Sketcher::SketchObject", "Sketch011")
body.addObject(sketch12)
sketch12.AttachmentSupport = (doc.XZ_Plane, [""])
sketch12.MapMode = "FlatFace"
sketch12.addGeometry(Part.Circle(Vector(-8.049074, 13.866898, 0), Vector(0, 0, 1), 1.5), False)
sketch12.addConstraint([
    Sketcher.Constraint("Diameter", 0, 3.0),
    Sketcher.Constraint("DistanceY", -1, 1, 0, 3, 13.866898),
    Sketcher.Constraint("DistanceX", 0, 3, -1, 1, 8.049074),
])
sketch12.setExpression("Constraints[0]", "Params.sketch12_diameter")
pocket9 = doc.addObject("PartDesign::Pocket", "Pocket008")
body.addObject(pocket9)
pocket9.Profile = sketch12
pocket9.Type = "ThroughAll"
pocket9.Midplane = True

sketch13 = doc.addObject("Sketcher::SketchObject", "Sketch012")
body.addObject(sketch13)
sketch13.AttachmentSupport = (doc.XZ_Plane, [""])
sketch13.MapMode = "FlatFace"
sketch13.addGeometry(Part.Circle(Vector(1.150926, 13.866898, 0), Vector(0, 0, 1), 1.5), False)
sketch13.addConstraint([
    Sketcher.Constraint("Diameter", 0, 3.0),
    Sketcher.Constraint("DistanceY", -1, 1, 0, 3, 13.866898),
    Sketcher.Constraint("DistanceX", -1, 1, 0, 3, 1.150926),
])
sketch13.setExpression("Constraints[0]", "Params.sketch13_diameter")
pocket10 = doc.addObject("PartDesign::Pocket", "Pocket009")
body.addObject(pocket10)
pocket10.Profile = sketch13
pocket10.Type = "ThroughAll"
pocket10.Midplane = True

sketch14 = doc.addObject("Sketcher::SketchObject", "Sketch013")
body.addObject(sketch14)
sketch14.AttachmentSupport = (doc.XZ_Plane, [""])
sketch14.MapMode = "FlatFace"
sketch14.addGeometry([
    Part.Circle(Vector(-11.949074, 5.866898, 0), Vector(0, 0, 1), 2),
    Part.Circle(Vector(5.050926, 5.866898, 0), Vector(0, 0, 1), 2),
    Part.Circle(Vector(-11.949074, -11.633102, 0), Vector(0, 0, 1), 2),
    Part.Circle(Vector(5.050926, -11.633102, 0), Vector(0, 0, 1), 2),
], False)
sketch14.addConstraint([
    Sketcher.Constraint("Equal", 0, 1),
    Sketcher.Constraint("Equal", 1, 2),
    Sketcher.Constraint("Equal", 2, 3),
    Sketcher.Constraint("Horizontal", 0, 3, 1, 3),
    Sketcher.Constraint("Horizontal", 2, 3, 3, 3),
    Sketcher.Constraint("Vertical", 0, 3, 2, 3),
    Sketcher.Constraint("Vertical", 1, 3, 3, 3),
    Sketcher.Constraint("Diameter", 0, 4.0),
    Sketcher.Constraint("DistanceX", 0, 3, 1, 3, 17.0),
    Sketcher.Constraint("DistanceY", 2, 3, 0, 3, 17.5),
    Sketcher.Constraint("DistanceY", -1, 1, 0, 3, 5.866898),
    Sketcher.Constraint("DistanceX", 0, 3, -1, 1, 11.949074),
])
sketch14.setExpression("Constraints[7]", "Params.sketch14_diameter")
pocket11 = doc.addObject("PartDesign::Pocket", "Pocket010")
body.addObject(pocket11)
pocket11.Profile = sketch14
pocket11.Type = "ThroughAll"
pocket11.Midplane = True

sketch15 = doc.addObject("Sketcher::SketchObject", "Sketch014")
body.addObject(sketch15)
sketch15.AttachmentSupport = (doc.XZ_Plane, [""])
sketch15.MapMode = "FlatFace"
sketch15.AttachmentOffset = App.Placement(Vector(0, 0, -2), App.Rotation())
sketch15.addGeometry([
    Part.LineSegment(Vector(5.750926, -13.833102, 0), Vector(-12.649074, -13.833102, 0)),
    Part.ArcOfCircle(Part.Circle(Vector(-12.649074, -12.333102, 0), Vector(0, 0, 1), 1.5), math.radians(180), math.radians(270)),
    Part.LineSegment(Vector(-14.149074, -12.333102, 0), Vector(-14.149074, 6.566898, 0)),
    Part.ArcOfCircle(Part.Circle(Vector(-12.649074, 6.566898, 0), Vector(0, 0, 1), 1.5), math.radians(90), math.radians(180)),
    Part.LineSegment(Vector(-12.649074, 8.066898, 0), Vector(5.750926, 8.066898, 0)),
    Part.ArcOfCircle(Part.Circle(Vector(5.750926, 6.566898, 0), Vector(0, 0, 1), 1.5), math.radians(0), math.radians(90)),
    Part.LineSegment(Vector(7.250926, 6.566898, 0), Vector(7.250926, -12.333102, 0)),
    Part.ArcOfCircle(Part.Circle(Vector(5.750926, -12.333102, 0), Vector(0, 0, 1), 1.5), math.radians(-90), math.radians(0)),
], False)
sketch15.addConstraint([
    Sketcher.Constraint("Tangent", 0, 2, 1, 2),
    Sketcher.Constraint("Tangent", 1, 1, 2, 1),
    Sketcher.Constraint("Tangent", 2, 2, 3, 2),
    Sketcher.Constraint("Tangent", 3, 1, 4, 1),
    Sketcher.Constraint("Tangent", 4, 2, 5, 2),
    Sketcher.Constraint("Tangent", 5, 1, 6, 1),
    Sketcher.Constraint("Tangent", 6, 2, 7, 2),
    Sketcher.Constraint("Tangent", 7, 1, 0, 1),
    Sketcher.Constraint("Horizontal", 0),
    Sketcher.Constraint("Vertical", 2),
    Sketcher.Constraint("Horizontal", 4),
    Sketcher.Constraint("Vertical", 6),
    Sketcher.Constraint("Equal", 1, 3),
    Sketcher.Constraint("Equal", 3, 5),
    Sketcher.Constraint("Equal", 5, 7),
    Sketcher.Constraint("Radius", 1, 1.5),
    Sketcher.Constraint("DistanceX", 0, 2, 0, 1, 18.4),
    Sketcher.Constraint("DistanceY", 2, 1, 2, 2, 18.9),
    Sketcher.Constraint("DistanceY", 1, 3, -1, 1, 12.333102),
    Sketcher.Constraint("DistanceX", 1, 3, -1, 1, 12.649074),
])
sketch15.setExpression("Constraints[15]", "Params.sketch15_radius")
sketch15.setExpression("Constraints[16]", "Params.sketch15_width")
sketch15.setExpression("Constraints[17]", "Params.sketch15_height")
pad4 = doc.addObject("PartDesign::Pad", "Pad003")
body.addObject(pad4)
pad4.Profile = sketch15
pad4.setExpression("Length", "Params.pad4_length")

sketch16 = doc.addObject("Sketcher::SketchObject", "Sketch015")
body.addObject(sketch16)
sketch16.AttachmentSupport = (doc.XZ_Plane, [""])
sketch16.MapMode = "FlatFace"
sketch16.AttachmentOffset = App.Placement(Vector(0, 0, -1), App.Rotation())
sketch16.addGeometry([
    Part.Circle(Vector(5.050926, -11.633102, 0), Vector(0, 0, 1), 2),
    Part.Circle(Vector(-11.949074, -11.633102, 0), Vector(0, 0, 1), 2),
    Part.Circle(Vector(-11.949074, 5.866898, 0), Vector(0, 0, 1), 2),
    Part.Circle(Vector(5.050926, 5.866898, 0), Vector(0, 0, 1), 2),
    Part.LineSegment(Vector(-10.949074, 3.038471, 0), Vector(-10.949074, 2.036898, 0)),
    Part.LineSegment(Vector(-10.949074, 2.036898, 0), Vector(-12.699074, 2.036898, 0)),
    Part.LineSegment(Vector(-12.699074, 2.036898, 0), Vector(-12.699074, -7.803102, 0)),
    Part.LineSegment(Vector(-12.699074, -7.803102, 0), Vector(-10.949074, -7.803102, 0)),
    Part.LineSegment(Vector(-10.949074, -7.803102, 0), Vector(-10.949074, -8.804675, 0)),
    Part.ArcOfCircle(Part.Circle(Vector(-11.949074, -11.633102, 0), Vector(0, 0, 1), 3), math.radians(0), math.radians(70.528779)),
    Part.LineSegment(Vector(-8.949074, -11.633102, 0), Vector(-7.528017, -11.633102, 0)),
    Part.LineSegment(Vector(-7.528017, -11.633102, 0), Vector(-7.528017, 5.866898, 0)),
    Part.LineSegment(Vector(-7.528017, 5.866898, 0), Vector(-8.949074, 5.866898, 0)),
    Part.ArcOfCircle(Part.Circle(Vector(-11.949074, 5.866898, 0), Vector(0, 0, 1), 3), math.radians(-70.528779), math.radians(0)),
    Part.LineSegment(Vector(4.050926, 2.036898, 0), Vector(4.050926, 3.038471, 0)),
    Part.ArcOfCircle(Part.Circle(Vector(5.050926, 5.866898, 0), Vector(0, 0, 1), 3), math.radians(-180), math.radians(-109.471221)),
    Part.LineSegment(Vector(2.050926, 5.866898, 0), Vector(0.629869, 5.866898, 0)),
    Part.LineSegment(Vector(0.629869, 5.866898, 0), Vector(0.629869, -11.633102, 0)),
    Part.LineSegment(Vector(0.629869, -11.633102, 0), Vector(2.050926, -11.633102, 0)),
    Part.ArcOfCircle(Part.Circle(Vector(5.050926, -11.633102, 0), Vector(0, 0, 1), 3), math.radians(109.471221), math.radians(180)),
    Part.LineSegment(Vector(4.050926, -8.804675, 0), Vector(4.050926, -7.803102, 0)),
    Part.LineSegment(Vector(4.050926, -7.803102, 0), Vector(5.800926, -7.803102, 0)),
    Part.LineSegment(Vector(5.800926, -7.803102, 0), Vector(5.800926, 2.036898, 0)),
    Part.LineSegment(Vector(5.800926, 2.036898, 0), Vector(4.050926, 2.036898, 0)),
], False)
sketch16.addConstraint([
    Sketcher.Constraint("Coincident", 4, 2, 5, 1),
    Sketcher.Constraint("Coincident", 5, 2, 6, 1),
    Sketcher.Constraint("Coincident", 6, 2, 7, 1),
    Sketcher.Constraint("Coincident", 7, 2, 8, 1),
    Sketcher.Constraint("Coincident", 8, 2, 9, 2),
    Sketcher.Constraint("Coincident", 9, 1, 10, 1),
    Sketcher.Constraint("Coincident", 10, 2, 11, 1),
    Sketcher.Constraint("Coincident", 11, 2, 12, 1),
    Sketcher.Constraint("Coincident", 12, 2, 13, 2),
    Sketcher.Constraint("Coincident", 13, 1, 4, 1),
    Sketcher.Constraint("Coincident", 14, 2, 15, 2),
    Sketcher.Constraint("Coincident", 15, 1, 16, 1),
    Sketcher.Constraint("Coincident", 16, 2, 17, 1),
    Sketcher.Constraint("Coincident", 17, 2, 18, 1),
    Sketcher.Constraint("Coincident", 18, 2, 19, 2),
    Sketcher.Constraint("Coincident", 19, 1, 20, 1),
    Sketcher.Constraint("Coincident", 20, 2, 21, 1),
    Sketcher.Constraint("Coincident", 21, 2, 22, 1),
    Sketcher.Constraint("Coincident", 22, 2, 23, 1),
    Sketcher.Constraint("Coincident", 23, 2, 14, 1),
    Sketcher.Constraint("Vertical", 4),
    Sketcher.Constraint("Horizontal", 5),
    Sketcher.Constraint("Vertical", 6),
    Sketcher.Constraint("Horizontal", 7),
    Sketcher.Constraint("Vertical", 8),
    Sketcher.Constraint("Horizontal", 10),
    Sketcher.Constraint("Vertical", 11),
    Sketcher.Constraint("Horizontal", 12),
    Sketcher.Constraint("Vertical", 14),
    Sketcher.Constraint("Horizontal", 16),
    Sketcher.Constraint("Vertical", 17),
    Sketcher.Constraint("Horizontal", 18),
    Sketcher.Constraint("Vertical", 20),
    Sketcher.Constraint("Horizontal", 21),
    Sketcher.Constraint("Vertical", 22),
    Sketcher.Constraint("Horizontal", 23),
    Sketcher.Constraint("Coincident", 9, 3, 1, 3),
    Sketcher.Constraint("Coincident", 13, 3, 2, 3),
    Sketcher.Constraint("Coincident", 15, 3, 3, 3),
    Sketcher.Constraint("Coincident", 19, 3, 0, 3),
    Sketcher.Constraint("Equal", 0, 1),
    Sketcher.Constraint("Equal", 1, 2),
    Sketcher.Constraint("Equal", 2, 3),
    Sketcher.Constraint("Equal", 9, 13),
    Sketcher.Constraint("Equal", 13, 15),
    Sketcher.Constraint("Equal", 15, 19),
    Sketcher.Constraint("Horizontal", 0, 3, 1, 3),
    Sketcher.Constraint("Horizontal", 2, 3, 3, 3),
    Sketcher.Constraint("Horizontal", 19, 3, 9, 1),
    Sketcher.Constraint("Horizontal", 15, 3, 11, 2),
    Sketcher.Constraint("Horizontal", 13, 1, 14, 2),
    Sketcher.Constraint("Horizontal", 12, 2, 15, 1),
    Sketcher.Constraint("Horizontal", 10, 2, 17, 2),
    Sketcher.Constraint("Horizontal", 8, 2, 19, 1),
    Sketcher.Constraint("Horizontal", 7, 2, 20, 2),
    Sketcher.Constraint("Horizontal", 5, 2, 22, 2),
    Sketcher.Constraint("Vertical", 1, 3, 2, 3),
    Sketcher.Constraint("Vertical", 0, 3, 3, 3),
    Sketcher.Constraint("Vertical", 4, 2, 7, 2),
    Sketcher.Constraint("Equal", 12, 16),
    Sketcher.Constraint("Equal", 7, 21),
    Sketcher.Constraint("Equal", 4, 8),
    Sketcher.Constraint("Diameter", 0, 4.0),
    Sketcher.Constraint("Radius", 9, 3.0),
    Sketcher.Constraint("DistanceY", 11, 1, 11, 2, 17.5),
    Sketcher.Constraint("DistanceX", 1, 3, 0, 3, 17.0),
    Sketcher.Constraint("DistanceX", 2, 3, 4, 2, 1.0),
    Sketcher.Constraint("DistanceX", 5, 2, 5, 1, 1.75),
    Sketcher.Constraint("DistanceY", 6, 2, 6, 1, 9.84),
    Sketcher.Constraint("DistanceY", 0, 3, -1, 1, 11.633102),
    Sketcher.Constraint("DistanceX", 10, 1, 10, 2, 1.421057),
    Sketcher.Constraint("DistanceX", -1, 1, 16, 2, 0.629869),
])
sketch16.setExpression("Constraints[62]", "Params.sketch16_diameter")
sketch16.setExpression("Constraints[63]", "Params.sketch16_radius")
sketch16.setExpression("Constraints[64]", "Params.sketch16_height")
sketch16.setExpression("Constraints[67]", "Params.sketch16_width")
sketch16.setExpression("Constraints[68]", "Params.sketch16_height2")
pocket12 = doc.addObject("PartDesign::Pocket", "Pocket011")
body.addObject(pocket12)
pocket12.Profile = sketch16
pocket12.Type = "ThroughAll"
pocket12.Midplane = True

sketch17 = doc.addObject("Sketcher::SketchObject", "Sketch016")
body.addObject(sketch17)
sketch17.AttachmentSupport = (doc.XZ_Plane, [""])
sketch17.MapMode = "FlatFace"
sketch17.AttachmentOffset = App.Placement(Vector(0, 0, -1), App.Rotation())
sketch17.addGeometry([
    Part.LineSegment(Vector(5.750926, -14.633102, 0), Vector(-12.649074, -14.633102, 0)),
    Part.ArcOfCircle(Part.Circle(Vector(-12.649074, -12.333102, 0), Vector(0, 0, 1), 2.3), math.radians(180), math.radians(270)),
    Part.LineSegment(Vector(-14.949074, -12.333102, 0), Vector(-14.949074, 6.566898, 0)),
    Part.ArcOfCircle(Part.Circle(Vector(-12.649074, 6.566898, 0), Vector(0, 0, 1), 2.3), math.radians(90), math.radians(180)),
    Part.LineSegment(Vector(-12.649074, 8.866898, 0), Vector(5.750926, 8.866898, 0)),
    Part.ArcOfCircle(Part.Circle(Vector(5.750926, 6.566898, 0), Vector(0, 0, 1), 2.3), math.radians(0), math.radians(90)),
    Part.LineSegment(Vector(8.050926, 6.566898, 0), Vector(8.050926, -12.333102, 0)),
    Part.ArcOfCircle(Part.Circle(Vector(5.750926, -12.333102, 0), Vector(0, 0, 1), 2.3), math.radians(-90), math.radians(0)),
], False)
sketch17.addConstraint([
    Sketcher.Constraint("Tangent", 0, 2, 1, 2),
    Sketcher.Constraint("Tangent", 1, 1, 2, 1),
    Sketcher.Constraint("Tangent", 2, 2, 3, 2),
    Sketcher.Constraint("Tangent", 3, 1, 4, 1),
    Sketcher.Constraint("Tangent", 4, 2, 5, 2),
    Sketcher.Constraint("Tangent", 5, 1, 6, 1),
    Sketcher.Constraint("Tangent", 6, 2, 7, 2),
    Sketcher.Constraint("Tangent", 7, 1, 0, 1),
    Sketcher.Constraint("Horizontal", 0),
    Sketcher.Constraint("Vertical", 2),
    Sketcher.Constraint("Horizontal", 4),
    Sketcher.Constraint("Vertical", 6),
    Sketcher.Constraint("Equal", 1, 3),
    Sketcher.Constraint("Equal", 3, 5),
    Sketcher.Constraint("Equal", 5, 7),
    Sketcher.Constraint("Radius", 1, 2.3),
    Sketcher.Constraint("DistanceX", 0, 2, 0, 1, 18.4),
    Sketcher.Constraint("DistanceY", 2, 1, 2, 2, 18.9),
    Sketcher.Constraint("DistanceY", 1, 3, -1, 1, 12.333102),
    Sketcher.Constraint("DistanceX", 1, 3, -1, 1, 12.649074),
])
sketch17.setExpression("Constraints[15]", "Params.sketch17_radius")
sketch17.setExpression("Constraints[16]", "Params.sketch17_width")
sketch17.setExpression("Constraints[17]", "Params.sketch17_height")
pocket13 = doc.addObject("PartDesign::Pocket", "Pocket012")
body.addObject(pocket13)
pocket13.Profile = sketch17
pocket13.setExpression("Length", "Params.pocket13_length")

doc.recompute()
